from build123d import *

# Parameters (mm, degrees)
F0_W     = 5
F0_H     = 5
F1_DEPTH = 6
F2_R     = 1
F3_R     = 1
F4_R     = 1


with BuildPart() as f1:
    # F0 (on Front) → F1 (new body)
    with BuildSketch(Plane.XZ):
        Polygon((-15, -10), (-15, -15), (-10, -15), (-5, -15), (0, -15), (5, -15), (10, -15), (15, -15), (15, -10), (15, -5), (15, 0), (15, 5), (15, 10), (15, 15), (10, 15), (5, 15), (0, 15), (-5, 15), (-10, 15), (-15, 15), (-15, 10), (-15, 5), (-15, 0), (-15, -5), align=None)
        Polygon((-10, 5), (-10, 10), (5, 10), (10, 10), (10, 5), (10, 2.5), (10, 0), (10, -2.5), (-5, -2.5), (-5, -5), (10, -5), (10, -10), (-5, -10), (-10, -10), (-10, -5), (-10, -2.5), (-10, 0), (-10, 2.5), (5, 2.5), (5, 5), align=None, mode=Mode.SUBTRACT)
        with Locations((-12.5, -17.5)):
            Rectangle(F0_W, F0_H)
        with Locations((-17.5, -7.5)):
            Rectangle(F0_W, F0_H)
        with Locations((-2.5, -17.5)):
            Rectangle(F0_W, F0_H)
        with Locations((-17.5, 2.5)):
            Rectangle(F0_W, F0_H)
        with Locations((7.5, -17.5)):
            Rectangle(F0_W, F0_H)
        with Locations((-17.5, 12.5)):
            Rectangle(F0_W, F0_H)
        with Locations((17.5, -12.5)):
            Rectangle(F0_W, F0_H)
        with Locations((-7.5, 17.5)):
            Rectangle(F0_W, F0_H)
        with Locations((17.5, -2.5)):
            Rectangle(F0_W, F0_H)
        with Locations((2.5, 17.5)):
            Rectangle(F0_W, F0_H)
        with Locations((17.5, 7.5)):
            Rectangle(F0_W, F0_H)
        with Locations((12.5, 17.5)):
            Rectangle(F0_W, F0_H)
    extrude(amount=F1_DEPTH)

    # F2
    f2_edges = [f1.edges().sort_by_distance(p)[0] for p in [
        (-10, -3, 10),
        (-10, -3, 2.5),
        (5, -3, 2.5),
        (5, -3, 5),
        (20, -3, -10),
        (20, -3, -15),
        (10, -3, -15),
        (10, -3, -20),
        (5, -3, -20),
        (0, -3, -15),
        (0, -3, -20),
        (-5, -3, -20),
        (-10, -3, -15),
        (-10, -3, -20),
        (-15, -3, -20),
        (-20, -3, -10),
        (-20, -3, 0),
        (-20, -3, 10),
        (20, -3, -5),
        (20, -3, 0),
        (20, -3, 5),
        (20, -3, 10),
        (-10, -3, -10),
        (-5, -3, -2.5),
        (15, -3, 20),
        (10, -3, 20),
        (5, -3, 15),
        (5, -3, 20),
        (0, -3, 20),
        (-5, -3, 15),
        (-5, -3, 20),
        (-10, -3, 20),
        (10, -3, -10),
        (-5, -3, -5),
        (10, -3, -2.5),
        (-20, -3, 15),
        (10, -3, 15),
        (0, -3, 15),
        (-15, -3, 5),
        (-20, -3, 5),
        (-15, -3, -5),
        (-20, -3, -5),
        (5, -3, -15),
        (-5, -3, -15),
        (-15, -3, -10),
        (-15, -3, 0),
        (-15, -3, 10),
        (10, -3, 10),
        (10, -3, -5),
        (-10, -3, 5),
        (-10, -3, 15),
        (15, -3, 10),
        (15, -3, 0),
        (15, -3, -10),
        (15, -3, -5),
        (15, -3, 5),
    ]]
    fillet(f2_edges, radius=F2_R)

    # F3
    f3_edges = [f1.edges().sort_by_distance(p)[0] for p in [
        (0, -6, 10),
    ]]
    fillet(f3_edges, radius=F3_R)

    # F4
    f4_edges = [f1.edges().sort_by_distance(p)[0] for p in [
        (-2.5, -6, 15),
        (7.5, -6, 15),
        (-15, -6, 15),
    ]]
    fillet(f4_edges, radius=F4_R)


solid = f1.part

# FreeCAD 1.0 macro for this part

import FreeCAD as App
import Part
import Sketcher
Q = App.Units.Quantity


def edges_at(feature, points):
    """Names of the edges that pass closest to the given points."""
    edges = feature.Shape.Edges
    near = lambda p: min(range(len(edges)), key=lambda i: edges[i].distToShape(Part.Vertex(*p))[0])
    return sorted({f"Edge{near(p) + 1}" for p in points})


def add_polygon(sketch, points):
    """Adds a closed chain of lines whose ends are joined by coincident constraints."""
    first, n = sketch.GeometryCount, len(points)
    for a, b in zip(points, points[1:] + points[:1]):
        sketch.addGeometry(Part.LineSegment(App.Vector(*a, 0), App.Vector(*b, 0)), False)
    for i in range(n):
        sketch.addConstraint(Sketcher.Constraint("Coincident", first + i, 2, first + (i + 1) % n, 1))

doc = App.newDocument("Part")
body = doc.addObject("PartDesign::Body", "Body")

# Sketch on XZ plane
sketch1 = doc.addObject("Sketcher::SketchObject", "Sketch")
body.addObject(sketch1)
sketch1.AttachmentSupport = (doc.XZ_Plane, [""])
sketch1.MapMode = "FlatFace"
add_polygon(sketch1, [(-10, -15), (-5, -15), (-5, -20), (0, -20), (0, -15), (5, -15), (5, -20), (10, -20), (10, -15), (20, -15), (20, -10), (15, -10), (15, -5), (20, -5), (20, 0), (15, 0), (15, 5), (20, 5), (20, 10), (15, 10), (15, 20), (10, 20), (10, 15), (5, 15), (5, 20), (0, 20), (0, 15), (-5, 15), (-5, 20), (-10, 20), (-10, 15), (-20, 15), (-20, 10), (-15, 10), (-15, 5), (-20, 5), (-20, 0), (-15, 0), (-15, -5), (-20, -5), (-20, -10), (-15, -10), (-15, -20), (-10, -20)])  # lines 0-43
add_polygon(sketch1, [(5, 5), (-10, 5), (-10, 10), (10, 10), (10, -2.5), (-5, -2.5), (-5, -5), (10, -5), (10, -10), (-10, -10), (-10, 2.5), (5, 2.5)])  # lines 44-55
sketch1.addConstraint([
    Sketcher.Constraint("Horizontal", 0),
    Sketcher.Constraint("Vertical", 1),
    Sketcher.Constraint("Horizontal", 2),
    Sketcher.Constraint("Vertical", 3),
    Sketcher.Constraint("Horizontal", 4),
    Sketcher.Constraint("Vertical", 5),
    Sketcher.Constraint("Horizontal", 6),
    Sketcher.Constraint("Vertical", 7),
    Sketcher.Constraint("Horizontal", 8),
    Sketcher.Constraint("Vertical", 9),
    Sketcher.Constraint("Horizontal", 10),
    Sketcher.Constraint("Vertical", 11),
    Sketcher.Constraint("Horizontal", 12),
    Sketcher.Constraint("Vertical", 13),
    Sketcher.Constraint("Horizontal", 14),
    Sketcher.Constraint("Vertical", 15),
    Sketcher.Constraint("Horizontal", 16),
    Sketcher.Constraint("Vertical", 17),
    Sketcher.Constraint("Horizontal", 18),
    Sketcher.Constraint("Vertical", 19),
    Sketcher.Constraint("Horizontal", 20),
    Sketcher.Constraint("Vertical", 21),
    Sketcher.Constraint("Horizontal", 22),
    Sketcher.Constraint("Vertical", 23),
    Sketcher.Constraint("Horizontal", 24),
    Sketcher.Constraint("Vertical", 25),
    Sketcher.Constraint("Horizontal", 26),
    Sketcher.Constraint("Vertical", 27),
    Sketcher.Constraint("Horizontal", 28),
    Sketcher.Constraint("Vertical", 29),
    Sketcher.Constraint("Horizontal", 30),
    Sketcher.Constraint("Vertical", 31),
    Sketcher.Constraint("Horizontal", 32),
    Sketcher.Constraint("Vertical", 33),
    Sketcher.Constraint("Horizontal", 34),
    Sketcher.Constraint("Vertical", 35),
    Sketcher.Constraint("Horizontal", 36),
    Sketcher.Constraint("Vertical", 37),
    Sketcher.Constraint("Horizontal", 38),
    Sketcher.Constraint("Vertical", 39),
    Sketcher.Constraint("Horizontal", 40),
    Sketcher.Constraint("Vertical", 41),
    Sketcher.Constraint("Horizontal", 42),
    Sketcher.Constraint("Vertical", 43),
    Sketcher.Constraint("Horizontal", 44),
    Sketcher.Constraint("Vertical", 45),
    Sketcher.Constraint("Horizontal", 46),
    Sketcher.Constraint("Vertical", 47),
    Sketcher.Constraint("Horizontal", 48),
    Sketcher.Constraint("Vertical", 49),
    Sketcher.Constraint("Horizontal", 50),
    Sketcher.Constraint("Vertical", 51),
    Sketcher.Constraint("Horizontal", 52),
    Sketcher.Constraint("Vertical", 53),
    Sketcher.Constraint("Horizontal", 54),
    Sketcher.Constraint("Vertical", 55),
    Sketcher.Constraint("Symmetric", 0, 2, 22, 2, -1, 1),
    Sketcher.Constraint("Symmetric", 2, 2, 24, 2, -1, 1),
    Sketcher.Constraint("Symmetric", 4, 2, 26, 2, -1, 1),
    Sketcher.Constraint("Symmetric", 6, 2, 28, 2, -1, 1),
    Sketcher.Constraint("Symmetric", 8, 2, 30, 2, -1, 1),
    Sketcher.Constraint("Symmetric", 10, 2, 32, 2, -1, 1),
    Sketcher.Constraint("Symmetric", 12, 2, 34, 2, -1, 1),
    Sketcher.Constraint("Symmetric", 14, 2, 36, 2, -1, 1),
    Sketcher.Constraint("Symmetric", 16, 2, 38, 2, -1, 1),
    Sketcher.Constraint("Symmetric", 18, 2, 40, 2, -1, 1),
    Sketcher.Constraint("Symmetric", 20, 2, 42, 2, -1, 1),
    Sketcher.Constraint("Symmetric", 44, 2, 50, 2, -1, 1),
    Sketcher.Constraint("Symmetric", 46, 2, 52, 2, -1, 1),
    Sketcher.Constraint("Symmetric", 48, 2, 54, 2, -1, 1),
    Sketcher.Constraint("Symmetric", 0, 2, 4, 2, -2),
    Sketcher.Constraint("Symmetric", 20, 2, 28, 2, -2),
    Sketcher.Constraint("Symmetric", 17, 2, 31, 2, -2),
    Sketcher.Constraint("Symmetric", 15, 2, 33, 2, -2),
    Sketcher.Constraint("PointOnObject", 2, 2, -2),
    Sketcher.Constraint("PointOnObject", 13, 2, -1),
    Sketcher.Constraint("Horizontal", 2, 2, 5, 2),
    Sketcher.Constraint("Horizontal", 4, 2, 7, 2),
    Sketcher.Constraint("Horizontal", 34, 2, 44, 2),
    Sketcher.Constraint("Horizontal", 32, 2, 45, 2),
    Sketcher.Constraint("Vertical", 9, 2, 12, 2),
    Sketcher.Constraint("Vertical", 15, 2, 18, 2),
    Sketcher.Constraint("Vertical", 43, 2, 44, 2),
    Sketcher.Constraint("Vertical", 21, 2, 46, 2),
    Sketcher.Constraint("Vertical", 27, 2, 48, 2),
    Sketcher.Constraint("Equal", 0, 2),
    Sketcher.Constraint("Equal", 6, 10),
    Sketcher.Constraint("Equal", 18, 20),
    Sketcher.Constraint("Equal", 42, 1),
    Sketcher.Constraint("Equal", 7, 9),
    Sketcher.Constraint("Equal", 9, 11),
    Sketcher.Constraint("Equal", 11, 13),
    Sketcher.Constraint("DistanceX", 0, 1, 0, 2, Q("5 mm")),
    Sketcher.Constraint("DistanceY", 47, 2, 47, 1, Q("12.5 mm")),
])
pad1 = doc.addObject("PartDesign::Pad", "Pad")
body.addObject(pad1)
pad1.Profile = sketch1
pad1.Length = 6
doc.recompute()

fillet = doc.addObject("PartDesign::Fillet", "Fillet")
body.addObject(fillet)
fillet.Base = (pad1, edges_at(pad1, [
    (-10, -3, 10),
    (-10, -3, 2.5),
    (5, -3, 2.5),
    (5, -3, 5),
    (20, -3, -10),
    (20, -3, -15),
    (10, -3, -15),
    (10, -3, -20),
    (5, -3, -20),
    (0, -3, -15),
    (0, -3, -20),
    (-5, -3, -20),
    (-10, -3, -15),
    (-10, -3, -20),
    (-15, -3, -20),
    (-20, -3, -10),
    (-20, -3, 0),
    (-20, -3, 10),
    (20, -3, -5),
    (20, -3, 0),
    (20, -3, 5),
    (20, -3, 10),
    (-10, -3, -10),
    (-5, -3, -2.5),
    (15, -3, 20),
    (10, -3, 20),
    (5, -3, 15),
    (5, -3, 20),
    (0, -3, 20),
    (-5, -3, 15),
    (-5, -3, 20),
    (-10, -3, 20),
    (10, -3, -10),
    (-5, -3, -5),
    (10, -3, -2.5),
    (-20, -3, 15),
    (10, -3, 15),
    (0, -3, 15),
    (-15, -3, 5),
    (-20, -3, 5),
    (-15, -3, -5),
    (-20, -3, -5),
    (5, -3, -15),
    (-5, -3, -15),
    (-15, -3, -10),
    (-15, -3, 0),
    (-15, -3, 10),
    (10, -3, 10),
    (10, -3, -5),
    (-10, -3, 5),
    (-10, -3, 15),
    (15, -3, 10),
    (15, -3, 0),
    (15, -3, -10),
    (15, -3, -5),
    (15, -3, 5),
]))
fillet.Radius = 1
doc.recompute()

fillet2 = doc.addObject("PartDesign::Fillet", "Fillet001")
body.addObject(fillet2)
fillet2.Base = (fillet, edges_at(fillet, [(0, -6, 10)]))
fillet2.Radius = 1
doc.recompute()

fillet3 = doc.addObject("PartDesign::Fillet", "Fillet002")
body.addObject(fillet3)
fillet3.Base = (fillet2, edges_at(fillet2, [(-2.5, -6, 15), (7.5, -6, 15), (-15, -6, 15)]))
fillet3.Radius = 1

doc.recompute()
